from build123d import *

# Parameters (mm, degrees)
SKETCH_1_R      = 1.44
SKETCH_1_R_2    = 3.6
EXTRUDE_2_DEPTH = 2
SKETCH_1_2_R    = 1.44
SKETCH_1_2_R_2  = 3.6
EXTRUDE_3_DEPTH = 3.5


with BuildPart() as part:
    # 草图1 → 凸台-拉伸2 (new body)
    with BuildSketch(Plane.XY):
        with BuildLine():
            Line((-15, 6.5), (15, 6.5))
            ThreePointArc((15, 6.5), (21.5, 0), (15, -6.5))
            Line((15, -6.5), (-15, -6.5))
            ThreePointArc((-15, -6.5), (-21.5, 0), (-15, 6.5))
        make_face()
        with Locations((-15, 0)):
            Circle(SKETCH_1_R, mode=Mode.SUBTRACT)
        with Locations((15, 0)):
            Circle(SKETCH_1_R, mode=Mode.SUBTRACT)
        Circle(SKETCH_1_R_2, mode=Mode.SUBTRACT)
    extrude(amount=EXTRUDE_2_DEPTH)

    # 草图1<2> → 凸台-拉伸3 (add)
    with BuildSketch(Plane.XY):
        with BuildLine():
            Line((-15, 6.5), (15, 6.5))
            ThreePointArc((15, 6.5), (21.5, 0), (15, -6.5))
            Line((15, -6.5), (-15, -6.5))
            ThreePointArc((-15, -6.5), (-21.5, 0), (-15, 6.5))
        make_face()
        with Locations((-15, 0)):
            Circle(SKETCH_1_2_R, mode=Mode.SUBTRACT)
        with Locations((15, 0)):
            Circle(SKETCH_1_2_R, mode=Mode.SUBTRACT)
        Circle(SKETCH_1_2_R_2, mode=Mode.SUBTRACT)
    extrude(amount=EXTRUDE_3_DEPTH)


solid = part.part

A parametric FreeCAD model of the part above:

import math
import FreeCAD as App
import Part
import Sketcher

V = App.Vector
Q = App.Units.Quantity

doc = App.newDocument("Part")
body = doc.addObject("PartDesign::Body", "Body")

# Sketch on XY plane
sketch1 = body.newObject("Sketcher::SketchObject", "Sketch")
sketch1.AttachmentSupport = (doc.getObject("XY_Plane"), [""])
sketch1.MapMode = "FlatFace"
sketch1.addGeometry([
    Part.LineSegment(V(15, 6.5, 0), V(-15, 6.5, 0)),  # 0
    Part.ArcOfCircle(Part.Circle(V(-15, 0, 0), V(0, 0, 1), 6.5), math.radians(90), math.radians(270)),  # 1
    Part.LineSegment(V(-15, -6.5, 0), V(15, -6.5, 0)),  # 2
    Part.ArcOfCircle(Part.Circle(V(15, 0, 0), V(0, 0, 1), 6.5), math.radians(-90), math.radians(90)),  # 3
    Part.Circle(V(15, 0, 0), V(0, 0, 1), 1.44),  # 4
    Part.Circle(V(0, 0, 0), V(0, 0, 1), 3.6),  # 5
    Part.Circle(V(-15, 0, 0), V(0, 0, 1), 1.44),  # 6
], False)
sketch1.addConstraint([
    Sketcher.Constraint("Tangent", 0, 2, 1, 1),
    Sketcher.Constraint("Tangent", 1, 2, 2, 1),
    Sketcher.Constraint("Tangent", 2, 2, 3, 1),
    Sketcher.Constraint("Tangent", 3, 2, 0, 1),
    Sketcher.Constraint("Horizontal", 0),
    Sketcher.Constraint("Horizontal", 2),
    Sketcher.Constraint("Coincident", 5, 3, -1, 1),
    Sketcher.Constraint("Coincident", 4, 3, 3, 3),
    Sketcher.Constraint("Coincident", 6, 3, 1, 3),
    Sketcher.Constraint("Equal", 4, 6),
    Sketcher.Constraint("Symmetric", 1, 3, 3, 3, -1, 1),
    Sketcher.Constraint("Diameter", 5, Q("7.2 mm")),
    Sketcher.Constraint("Radius", 1, Q("6.5 mm")),
    Sketcher.Constraint("Diameter", 4, Q("2.88 mm")),
    Sketcher.Constraint("DistanceX", 0, 2, 0, 1, Q("30 mm")),
])
pad1 = body.newObject("PartDesign::Pad", "Pad")
pad1.Profile = sketch1
pad1.Length = 2

# Sketch on XY plane
sketch2 = body.newObject("Sketcher::SketchObject", "Sketch001")
sketch2.AttachmentSupport = (doc.getObject("XY_Plane"), [""])
sketch2.MapMode = "FlatFace"
sketch2.addGeometry([
    Part.LineSegment(V(15, 6.5, 0), V(-15, 6.5, 0)),  # 0
    Part.ArcOfCircle(Part.Circle(V(-15, 0, 0), V(0, 0, 1), 6.5), math.radians(90), math.radians(270)),  # 1
    Part.LineSegment(V(-15, -6.5, 0), V(15, -6.5, 0)),  # 2
    Part.ArcOfCircle(Part.Circle(V(15, 0, 0), V(0, 0, 1), 6.5), math.radians(-90), math.radians(90)),  # 3
    Part.Circle(V(15, 0, 0), V(0, 0, 1), 1.44),  # 4
    Part.Circle(V(0, 0, 0), V(0, 0, 1), 3.6),  # 5
    Part.Circle(V(-15, 0, 0), V(0, 0, 1), 1.44),  # 6
], False)
sketch2.addConstraint([
    Sketcher.Constraint("Tangent", 0, 2, 1, 1),
    Sketcher.Constraint("Tangent", 1, 2, 2, 1),
    Sketcher.Constraint("Tangent", 2, 2, 3, 1),
    Sketcher.Constraint("Tangent", 3, 2, 0, 1),
    Sketcher.Constraint("Horizontal", 0),
    Sketcher.Constraint("Horizontal", 2),
    Sketcher.Constraint("Coincident", 5, 3, -1, 1),
    Sketcher.Constraint("Coincident", 4, 3, 3, 3),
    Sketcher.Constraint("Coincident", 6, 3, 1, 3),
    Sketcher.Constraint("Equal", 4, 6),
    Sketcher.Constraint("Symmetric", 1, 3, 3, 3, -1, 1),
    Sketcher.Constraint("Diameter", 5, Q("7.2 mm")),
    Sketcher.Constraint("Radius", 1, Q("6.5 mm")),
    Sketcher.Constraint("Diameter", 4, Q("2.88 mm")),
    Sketcher.Constraint("DistanceX", 0, 2, 0, 1, Q("30 mm")),
])
pad2 = body.newObject("PartDesign::Pad", "Pad001")
pad2.Profile = sketch2
pad2.Length = 3.5

doc.recompute()
